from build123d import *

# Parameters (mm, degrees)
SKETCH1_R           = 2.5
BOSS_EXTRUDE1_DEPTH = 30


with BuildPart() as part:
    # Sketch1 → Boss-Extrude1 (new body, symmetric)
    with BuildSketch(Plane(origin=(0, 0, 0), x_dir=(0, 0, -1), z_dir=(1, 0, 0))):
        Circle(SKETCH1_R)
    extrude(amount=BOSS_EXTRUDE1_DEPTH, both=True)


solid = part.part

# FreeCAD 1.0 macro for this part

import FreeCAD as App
import Part
import Sketcher
from FreeCAD import Vector
Q = App.Units.Quantity

doc = App.newDocument("Part")
body = doc.addObject("PartDesign::Body", "Body")

sketch1 = body.newObject("Sketcher::SketchObject", "Sketch")
sketch1.AttachmentSupport = (doc.getObject("YZ_Plane"), [""])
sketch1.MapMode = "FlatFace"
sketch1.addGeometry(Part.Circle(Vector(0, 0, 0), Vector(0, 0, 1), 2.5), False)
sketch1.addConstraint([
    Sketcher.Constraint("Coincident", 0, 3, -1, 1),
    Sketcher.Constraint("Diameter", 0, Q("5 mm")),
])
pad1 = body.newObject("PartDesign::Pad", "Pad")
pad1.Profile = sketch1
pad1.Length = 60
pad1.Midplane = True

doc.recompute()
